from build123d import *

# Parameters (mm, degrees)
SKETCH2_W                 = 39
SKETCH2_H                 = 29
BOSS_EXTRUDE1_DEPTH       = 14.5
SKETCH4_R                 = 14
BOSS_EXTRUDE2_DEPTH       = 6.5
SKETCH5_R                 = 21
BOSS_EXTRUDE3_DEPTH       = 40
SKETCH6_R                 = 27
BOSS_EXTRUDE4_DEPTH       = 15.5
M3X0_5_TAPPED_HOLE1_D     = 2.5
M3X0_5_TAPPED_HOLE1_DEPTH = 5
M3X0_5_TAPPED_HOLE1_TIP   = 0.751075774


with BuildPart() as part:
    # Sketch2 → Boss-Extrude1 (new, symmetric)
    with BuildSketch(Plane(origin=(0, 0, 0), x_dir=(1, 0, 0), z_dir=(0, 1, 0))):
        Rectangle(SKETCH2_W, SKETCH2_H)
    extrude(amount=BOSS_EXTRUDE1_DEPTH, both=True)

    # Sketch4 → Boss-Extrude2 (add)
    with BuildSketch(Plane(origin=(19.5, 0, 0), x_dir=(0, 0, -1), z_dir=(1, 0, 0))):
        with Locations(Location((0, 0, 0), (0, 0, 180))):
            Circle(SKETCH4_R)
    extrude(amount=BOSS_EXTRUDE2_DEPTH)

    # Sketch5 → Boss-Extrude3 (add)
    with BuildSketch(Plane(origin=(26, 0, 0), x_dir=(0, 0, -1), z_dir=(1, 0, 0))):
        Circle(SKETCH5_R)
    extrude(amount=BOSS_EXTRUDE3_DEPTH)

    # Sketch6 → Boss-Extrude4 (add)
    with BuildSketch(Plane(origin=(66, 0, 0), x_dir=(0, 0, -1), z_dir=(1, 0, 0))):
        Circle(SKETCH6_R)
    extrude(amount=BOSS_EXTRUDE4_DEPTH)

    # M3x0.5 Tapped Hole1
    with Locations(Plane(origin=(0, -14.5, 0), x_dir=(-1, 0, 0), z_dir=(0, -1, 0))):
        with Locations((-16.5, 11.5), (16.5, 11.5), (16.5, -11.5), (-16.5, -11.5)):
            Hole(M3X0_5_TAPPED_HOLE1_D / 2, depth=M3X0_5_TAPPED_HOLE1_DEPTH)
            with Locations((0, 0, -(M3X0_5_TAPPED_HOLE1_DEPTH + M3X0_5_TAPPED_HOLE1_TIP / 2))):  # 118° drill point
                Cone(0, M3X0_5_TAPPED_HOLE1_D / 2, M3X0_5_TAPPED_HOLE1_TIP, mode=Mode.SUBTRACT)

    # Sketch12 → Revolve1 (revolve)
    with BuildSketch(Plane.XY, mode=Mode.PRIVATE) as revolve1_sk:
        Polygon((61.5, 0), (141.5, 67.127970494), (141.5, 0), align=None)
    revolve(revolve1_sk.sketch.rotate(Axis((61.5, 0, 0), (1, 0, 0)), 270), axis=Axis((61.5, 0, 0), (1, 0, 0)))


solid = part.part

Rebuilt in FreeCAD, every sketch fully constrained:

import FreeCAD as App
import Part
import Sketcher
from FreeCAD import Vector
Q = App.Units.Quantity

doc = App.newDocument("Part")
body = doc.addObject("PartDesign::Body", "Body")

# Sketch on XZ plane
sketch1 = body.newObject("Sketcher::SketchObject", "Sketch")
sketch1.AttachmentSupport = (doc.getObject("XZ_Plane"), [""])
sketch1.MapMode = "FlatFace"
sketch1.addGeometry(Part.LineSegment(Vector(-20, -14, 0), Vector(-20, 14, 0)), False)
sketch1.addGeometry(Part.LineSegment(Vector(-20, 14, 0), Vector(20, 14, 0)), False)
sketch1.addGeometry(Part.LineSegment(Vector(20, 14, 0), Vector(20, -14, 0)), False)
sketch1.addGeometry(Part.LineSegment(Vector(20, -14, 0), Vector(-20, -14, 0)), False)
sketch1.addConstraint(Sketcher.Constraint("Coincident", 0, 2, 1, 1))
sketch1.addConstraint(Sketcher.Constraint("Coincident", 1, 2, 2, 1))
sketch1.addConstraint(Sketcher.Constraint("Coincident", 2, 2, 3, 1))
sketch1.addConstraint(Sketcher.Constraint("Coincident", 3, 2, 0, 1))
sketch1.addConstraint(Sketcher.Constraint("Vertical", 0))
sketch1.addConstraint(Sketcher.Constraint("Horizontal", 1))
sketch1.addConstraint(Sketcher.Constraint("Vertical", 2))
sketch1.addConstraint(Sketcher.Constraint("Horizontal", 3))
sketch1.addConstraint(Sketcher.Constraint("Symmetric", 0, 2, 2, 2, -1, 1))
sketch1.addConstraint(Sketcher.Constraint("DistanceX", 1, 1, 1, 2, Q("39 mm")))
sketch1.addConstraint(Sketcher.Constraint("DistanceY", 0, 1, 0, 2, Q("29 mm")))
pad1 = body.newObject("PartDesign::Pad", "Pad")
pad1.Profile = sketch1
pad1.Length = 29
pad1.Midplane = True

# Sketch on YZ plane
sketch2 = body.newObject("Sketcher::SketchObject", "Sketch001")
sketch2.AttachmentSupport = (doc.getObject("YZ_Plane"), [""])
sketch2.MapMode = "FlatFace"
sketch2.AttachmentOffset = App.Placement(Vector(0, 0, 19.5), App.Rotation())
sketch2.addGeometry(Part.Circle(Vector(0, 0, 0), Vector(0, 0, 1), 14), False)
sketch2.addConstraint(Sketcher.Constraint("Coincident", 0, 3, -1, 1))
sketch2.addConstraint(Sketcher.Constraint("Diameter", 0, Q("28 mm")))
pad2 = body.newObject("PartDesign::Pad", "Pad001")
pad2.Profile = sketch2
pad2.Length = 6.5

# Sketch on YZ plane
sketch3 = body.newObject("Sketcher::SketchObject", "Sketch002")
sketch3.AttachmentSupport = (doc.getObject("YZ_Plane"), [""])
sketch3.MapMode = "FlatFace"
sketch3.AttachmentOffset = App.Placement(Vector(0, 0, 26), App.Rotation())
sketch3.addGeometry(Part.Circle(Vector(0, 0, 0), Vector(0, 0, 1), 21), False)
sketch3.addConstraint(Sketcher.Constraint("Coincident", 0, 3, -1, 1))
sketch3.addConstraint(Sketcher.Constraint("Diameter", 0, Q("42 mm")))
pad3 = body.newObject("PartDesign::Pad", "Pad002")
pad3.Profile = sketch3
pad3.Length = 40

# Sketch on YZ plane
sketch4 = body.newObject("Sketcher::SketchObject", "Sketch003")
sketch4.AttachmentSupport = (doc.getObject("YZ_Plane"), [""])
sketch4.MapMode = "FlatFace"
sketch4.AttachmentOffset = App.Placement(Vector(0, 0, 66), App.Rotation())
sketch4.addGeometry(Part.Circle(Vector(0, 0, 0), Vector(0, 0, 1), 27), False)
sketch4.addConstraint(Sketcher.Constraint("Coincident", 0, 3, -1, 1))
sketch4.addConstraint(Sketcher.Constraint("Diameter", 0, Q("54 mm")))
pad4 = body.newObject("PartDesign::Pad", "Pad003")
pad4.Profile = sketch4
pad4.Length = 15.5

# Sketch on XZ plane
sketch5 = body.newObject("Sketcher::SketchObject", "Sketch004")
sketch5.AttachmentSupport = (doc.getObject("XZ_Plane"), [""])
sketch5.MapMode = "FlatFace"
sketch5.AttachmentOffset = App.Placement(Vector(0, 0, 14.5), App.Rotation())
sketch5.addGeometry(Part.Circle(Vector(16.5, -11.5, 0), Vector(0, 0, 1), 1.2), False)
sketch5.addGeometry(Part.Circle(Vector(-16.5, -11.5, 0), Vector(0, 0, 1), 1.2), False)
sketch5.addGeometry(Part.Circle(Vector(-16.5, 11.5, 0), Vector(0, 0, 1), 1.2), False)
sketch5.addGeometry(Part.Circle(Vector(16.5, 11.5, 0), Vector(0, 0, 1), 1.2), False)
sketch5.addConstraint(Sketcher.Constraint("Equal", 0, 1))
sketch5.addConstraint(Sketcher.Constraint("Equal", 1, 2))
sketch5.addConstraint(Sketcher.Constraint("Equal", 2, 3))
sketch5.addConstraint(Sketcher.Constraint("Symmetric", 0, 3, 2, 3, -1, 1))
sketch5.addConstraint(Sketcher.Constraint("Symmetric", 1, 3, 3, 3, -1, 1))
sketch5.addConstraint(Sketcher.Constraint("Symmetric", 0, 3, 1, 3, -2))
sketch5.addConstraint(Sketcher.Constraint("Diameter", 0, Q("2.5 mm")))
sketch5.addConstraint(Sketcher.Constraint("DistanceX", 1, 3, 0, 3, Q("33 mm")))
sketch5.addConstraint(Sketcher.Constraint("DistanceY", 1, 3, 2, 3, Q("23 mm")))
doc.recompute()
hole = body.newObject("PartDesign::Hole", "Hole")
hole.Profile = sketch5
hole.ThreadType = "None"
hole.Diameter = 2.5
hole.DepthType = "Dimension"
hole.Depth = 5
hole.DrillPoint = "Angled"
hole.DrillPointAngle = 118

# Sketch on XY plane
sketch6 = body.newObject("Sketcher::SketchObject", "Sketch005")
sketch6.AttachmentSupport = (doc.getObject("XY_Plane"), [""])
sketch6.MapMode = "FlatFace"
sketch6.addGeometry(Part.LineSegment(Vector(142, 67, 0), Vector(62, 0, 0)), False)
sketch6.addGeometry(Part.LineSegment(Vector(62, 0, 0), Vector(142, 0, 0)), False)
sketch6.addGeometry(Part.LineSegment(Vector(142, 0, 0), Vector(142, 67, 0)), False)
sketch6.addConstraint(Sketcher.Constraint("Coincident", 0, 2, 1, 1))
sketch6.addConstraint(Sketcher.Constraint("Coincident", 1, 2, 2, 1))
sketch6.addConstraint(Sketcher.Constraint("Coincident", 2, 2, 0, 1))
sketch6.addConstraint(Sketcher.Constraint("Horizontal", 1))
sketch6.addConstraint(Sketcher.Constraint("Vertical", 2))
sketch6.addConstraint(Sketcher.Constraint("PointOnObject", 0, 2, -1))
sketch6.addConstraint(Sketcher.Constraint("DistanceX", 1, 1, 1, 2, Q("80 mm")))
sketch6.addConstraint(Sketcher.Constraint("Angle", 0, Q("-140 deg")))
sketch6.addConstraint(Sketcher.Constraint("DistanceX", -1, 1, 0, 2, Q("61.5 mm")))
revolution = body.newObject("PartDesign::Revolution", "Revolution")
revolution.Profile = sketch6
revolution.ReferenceAxis = (sketch6, ["H_Axis"])
revolution.Angle = 360

doc.recompute()
